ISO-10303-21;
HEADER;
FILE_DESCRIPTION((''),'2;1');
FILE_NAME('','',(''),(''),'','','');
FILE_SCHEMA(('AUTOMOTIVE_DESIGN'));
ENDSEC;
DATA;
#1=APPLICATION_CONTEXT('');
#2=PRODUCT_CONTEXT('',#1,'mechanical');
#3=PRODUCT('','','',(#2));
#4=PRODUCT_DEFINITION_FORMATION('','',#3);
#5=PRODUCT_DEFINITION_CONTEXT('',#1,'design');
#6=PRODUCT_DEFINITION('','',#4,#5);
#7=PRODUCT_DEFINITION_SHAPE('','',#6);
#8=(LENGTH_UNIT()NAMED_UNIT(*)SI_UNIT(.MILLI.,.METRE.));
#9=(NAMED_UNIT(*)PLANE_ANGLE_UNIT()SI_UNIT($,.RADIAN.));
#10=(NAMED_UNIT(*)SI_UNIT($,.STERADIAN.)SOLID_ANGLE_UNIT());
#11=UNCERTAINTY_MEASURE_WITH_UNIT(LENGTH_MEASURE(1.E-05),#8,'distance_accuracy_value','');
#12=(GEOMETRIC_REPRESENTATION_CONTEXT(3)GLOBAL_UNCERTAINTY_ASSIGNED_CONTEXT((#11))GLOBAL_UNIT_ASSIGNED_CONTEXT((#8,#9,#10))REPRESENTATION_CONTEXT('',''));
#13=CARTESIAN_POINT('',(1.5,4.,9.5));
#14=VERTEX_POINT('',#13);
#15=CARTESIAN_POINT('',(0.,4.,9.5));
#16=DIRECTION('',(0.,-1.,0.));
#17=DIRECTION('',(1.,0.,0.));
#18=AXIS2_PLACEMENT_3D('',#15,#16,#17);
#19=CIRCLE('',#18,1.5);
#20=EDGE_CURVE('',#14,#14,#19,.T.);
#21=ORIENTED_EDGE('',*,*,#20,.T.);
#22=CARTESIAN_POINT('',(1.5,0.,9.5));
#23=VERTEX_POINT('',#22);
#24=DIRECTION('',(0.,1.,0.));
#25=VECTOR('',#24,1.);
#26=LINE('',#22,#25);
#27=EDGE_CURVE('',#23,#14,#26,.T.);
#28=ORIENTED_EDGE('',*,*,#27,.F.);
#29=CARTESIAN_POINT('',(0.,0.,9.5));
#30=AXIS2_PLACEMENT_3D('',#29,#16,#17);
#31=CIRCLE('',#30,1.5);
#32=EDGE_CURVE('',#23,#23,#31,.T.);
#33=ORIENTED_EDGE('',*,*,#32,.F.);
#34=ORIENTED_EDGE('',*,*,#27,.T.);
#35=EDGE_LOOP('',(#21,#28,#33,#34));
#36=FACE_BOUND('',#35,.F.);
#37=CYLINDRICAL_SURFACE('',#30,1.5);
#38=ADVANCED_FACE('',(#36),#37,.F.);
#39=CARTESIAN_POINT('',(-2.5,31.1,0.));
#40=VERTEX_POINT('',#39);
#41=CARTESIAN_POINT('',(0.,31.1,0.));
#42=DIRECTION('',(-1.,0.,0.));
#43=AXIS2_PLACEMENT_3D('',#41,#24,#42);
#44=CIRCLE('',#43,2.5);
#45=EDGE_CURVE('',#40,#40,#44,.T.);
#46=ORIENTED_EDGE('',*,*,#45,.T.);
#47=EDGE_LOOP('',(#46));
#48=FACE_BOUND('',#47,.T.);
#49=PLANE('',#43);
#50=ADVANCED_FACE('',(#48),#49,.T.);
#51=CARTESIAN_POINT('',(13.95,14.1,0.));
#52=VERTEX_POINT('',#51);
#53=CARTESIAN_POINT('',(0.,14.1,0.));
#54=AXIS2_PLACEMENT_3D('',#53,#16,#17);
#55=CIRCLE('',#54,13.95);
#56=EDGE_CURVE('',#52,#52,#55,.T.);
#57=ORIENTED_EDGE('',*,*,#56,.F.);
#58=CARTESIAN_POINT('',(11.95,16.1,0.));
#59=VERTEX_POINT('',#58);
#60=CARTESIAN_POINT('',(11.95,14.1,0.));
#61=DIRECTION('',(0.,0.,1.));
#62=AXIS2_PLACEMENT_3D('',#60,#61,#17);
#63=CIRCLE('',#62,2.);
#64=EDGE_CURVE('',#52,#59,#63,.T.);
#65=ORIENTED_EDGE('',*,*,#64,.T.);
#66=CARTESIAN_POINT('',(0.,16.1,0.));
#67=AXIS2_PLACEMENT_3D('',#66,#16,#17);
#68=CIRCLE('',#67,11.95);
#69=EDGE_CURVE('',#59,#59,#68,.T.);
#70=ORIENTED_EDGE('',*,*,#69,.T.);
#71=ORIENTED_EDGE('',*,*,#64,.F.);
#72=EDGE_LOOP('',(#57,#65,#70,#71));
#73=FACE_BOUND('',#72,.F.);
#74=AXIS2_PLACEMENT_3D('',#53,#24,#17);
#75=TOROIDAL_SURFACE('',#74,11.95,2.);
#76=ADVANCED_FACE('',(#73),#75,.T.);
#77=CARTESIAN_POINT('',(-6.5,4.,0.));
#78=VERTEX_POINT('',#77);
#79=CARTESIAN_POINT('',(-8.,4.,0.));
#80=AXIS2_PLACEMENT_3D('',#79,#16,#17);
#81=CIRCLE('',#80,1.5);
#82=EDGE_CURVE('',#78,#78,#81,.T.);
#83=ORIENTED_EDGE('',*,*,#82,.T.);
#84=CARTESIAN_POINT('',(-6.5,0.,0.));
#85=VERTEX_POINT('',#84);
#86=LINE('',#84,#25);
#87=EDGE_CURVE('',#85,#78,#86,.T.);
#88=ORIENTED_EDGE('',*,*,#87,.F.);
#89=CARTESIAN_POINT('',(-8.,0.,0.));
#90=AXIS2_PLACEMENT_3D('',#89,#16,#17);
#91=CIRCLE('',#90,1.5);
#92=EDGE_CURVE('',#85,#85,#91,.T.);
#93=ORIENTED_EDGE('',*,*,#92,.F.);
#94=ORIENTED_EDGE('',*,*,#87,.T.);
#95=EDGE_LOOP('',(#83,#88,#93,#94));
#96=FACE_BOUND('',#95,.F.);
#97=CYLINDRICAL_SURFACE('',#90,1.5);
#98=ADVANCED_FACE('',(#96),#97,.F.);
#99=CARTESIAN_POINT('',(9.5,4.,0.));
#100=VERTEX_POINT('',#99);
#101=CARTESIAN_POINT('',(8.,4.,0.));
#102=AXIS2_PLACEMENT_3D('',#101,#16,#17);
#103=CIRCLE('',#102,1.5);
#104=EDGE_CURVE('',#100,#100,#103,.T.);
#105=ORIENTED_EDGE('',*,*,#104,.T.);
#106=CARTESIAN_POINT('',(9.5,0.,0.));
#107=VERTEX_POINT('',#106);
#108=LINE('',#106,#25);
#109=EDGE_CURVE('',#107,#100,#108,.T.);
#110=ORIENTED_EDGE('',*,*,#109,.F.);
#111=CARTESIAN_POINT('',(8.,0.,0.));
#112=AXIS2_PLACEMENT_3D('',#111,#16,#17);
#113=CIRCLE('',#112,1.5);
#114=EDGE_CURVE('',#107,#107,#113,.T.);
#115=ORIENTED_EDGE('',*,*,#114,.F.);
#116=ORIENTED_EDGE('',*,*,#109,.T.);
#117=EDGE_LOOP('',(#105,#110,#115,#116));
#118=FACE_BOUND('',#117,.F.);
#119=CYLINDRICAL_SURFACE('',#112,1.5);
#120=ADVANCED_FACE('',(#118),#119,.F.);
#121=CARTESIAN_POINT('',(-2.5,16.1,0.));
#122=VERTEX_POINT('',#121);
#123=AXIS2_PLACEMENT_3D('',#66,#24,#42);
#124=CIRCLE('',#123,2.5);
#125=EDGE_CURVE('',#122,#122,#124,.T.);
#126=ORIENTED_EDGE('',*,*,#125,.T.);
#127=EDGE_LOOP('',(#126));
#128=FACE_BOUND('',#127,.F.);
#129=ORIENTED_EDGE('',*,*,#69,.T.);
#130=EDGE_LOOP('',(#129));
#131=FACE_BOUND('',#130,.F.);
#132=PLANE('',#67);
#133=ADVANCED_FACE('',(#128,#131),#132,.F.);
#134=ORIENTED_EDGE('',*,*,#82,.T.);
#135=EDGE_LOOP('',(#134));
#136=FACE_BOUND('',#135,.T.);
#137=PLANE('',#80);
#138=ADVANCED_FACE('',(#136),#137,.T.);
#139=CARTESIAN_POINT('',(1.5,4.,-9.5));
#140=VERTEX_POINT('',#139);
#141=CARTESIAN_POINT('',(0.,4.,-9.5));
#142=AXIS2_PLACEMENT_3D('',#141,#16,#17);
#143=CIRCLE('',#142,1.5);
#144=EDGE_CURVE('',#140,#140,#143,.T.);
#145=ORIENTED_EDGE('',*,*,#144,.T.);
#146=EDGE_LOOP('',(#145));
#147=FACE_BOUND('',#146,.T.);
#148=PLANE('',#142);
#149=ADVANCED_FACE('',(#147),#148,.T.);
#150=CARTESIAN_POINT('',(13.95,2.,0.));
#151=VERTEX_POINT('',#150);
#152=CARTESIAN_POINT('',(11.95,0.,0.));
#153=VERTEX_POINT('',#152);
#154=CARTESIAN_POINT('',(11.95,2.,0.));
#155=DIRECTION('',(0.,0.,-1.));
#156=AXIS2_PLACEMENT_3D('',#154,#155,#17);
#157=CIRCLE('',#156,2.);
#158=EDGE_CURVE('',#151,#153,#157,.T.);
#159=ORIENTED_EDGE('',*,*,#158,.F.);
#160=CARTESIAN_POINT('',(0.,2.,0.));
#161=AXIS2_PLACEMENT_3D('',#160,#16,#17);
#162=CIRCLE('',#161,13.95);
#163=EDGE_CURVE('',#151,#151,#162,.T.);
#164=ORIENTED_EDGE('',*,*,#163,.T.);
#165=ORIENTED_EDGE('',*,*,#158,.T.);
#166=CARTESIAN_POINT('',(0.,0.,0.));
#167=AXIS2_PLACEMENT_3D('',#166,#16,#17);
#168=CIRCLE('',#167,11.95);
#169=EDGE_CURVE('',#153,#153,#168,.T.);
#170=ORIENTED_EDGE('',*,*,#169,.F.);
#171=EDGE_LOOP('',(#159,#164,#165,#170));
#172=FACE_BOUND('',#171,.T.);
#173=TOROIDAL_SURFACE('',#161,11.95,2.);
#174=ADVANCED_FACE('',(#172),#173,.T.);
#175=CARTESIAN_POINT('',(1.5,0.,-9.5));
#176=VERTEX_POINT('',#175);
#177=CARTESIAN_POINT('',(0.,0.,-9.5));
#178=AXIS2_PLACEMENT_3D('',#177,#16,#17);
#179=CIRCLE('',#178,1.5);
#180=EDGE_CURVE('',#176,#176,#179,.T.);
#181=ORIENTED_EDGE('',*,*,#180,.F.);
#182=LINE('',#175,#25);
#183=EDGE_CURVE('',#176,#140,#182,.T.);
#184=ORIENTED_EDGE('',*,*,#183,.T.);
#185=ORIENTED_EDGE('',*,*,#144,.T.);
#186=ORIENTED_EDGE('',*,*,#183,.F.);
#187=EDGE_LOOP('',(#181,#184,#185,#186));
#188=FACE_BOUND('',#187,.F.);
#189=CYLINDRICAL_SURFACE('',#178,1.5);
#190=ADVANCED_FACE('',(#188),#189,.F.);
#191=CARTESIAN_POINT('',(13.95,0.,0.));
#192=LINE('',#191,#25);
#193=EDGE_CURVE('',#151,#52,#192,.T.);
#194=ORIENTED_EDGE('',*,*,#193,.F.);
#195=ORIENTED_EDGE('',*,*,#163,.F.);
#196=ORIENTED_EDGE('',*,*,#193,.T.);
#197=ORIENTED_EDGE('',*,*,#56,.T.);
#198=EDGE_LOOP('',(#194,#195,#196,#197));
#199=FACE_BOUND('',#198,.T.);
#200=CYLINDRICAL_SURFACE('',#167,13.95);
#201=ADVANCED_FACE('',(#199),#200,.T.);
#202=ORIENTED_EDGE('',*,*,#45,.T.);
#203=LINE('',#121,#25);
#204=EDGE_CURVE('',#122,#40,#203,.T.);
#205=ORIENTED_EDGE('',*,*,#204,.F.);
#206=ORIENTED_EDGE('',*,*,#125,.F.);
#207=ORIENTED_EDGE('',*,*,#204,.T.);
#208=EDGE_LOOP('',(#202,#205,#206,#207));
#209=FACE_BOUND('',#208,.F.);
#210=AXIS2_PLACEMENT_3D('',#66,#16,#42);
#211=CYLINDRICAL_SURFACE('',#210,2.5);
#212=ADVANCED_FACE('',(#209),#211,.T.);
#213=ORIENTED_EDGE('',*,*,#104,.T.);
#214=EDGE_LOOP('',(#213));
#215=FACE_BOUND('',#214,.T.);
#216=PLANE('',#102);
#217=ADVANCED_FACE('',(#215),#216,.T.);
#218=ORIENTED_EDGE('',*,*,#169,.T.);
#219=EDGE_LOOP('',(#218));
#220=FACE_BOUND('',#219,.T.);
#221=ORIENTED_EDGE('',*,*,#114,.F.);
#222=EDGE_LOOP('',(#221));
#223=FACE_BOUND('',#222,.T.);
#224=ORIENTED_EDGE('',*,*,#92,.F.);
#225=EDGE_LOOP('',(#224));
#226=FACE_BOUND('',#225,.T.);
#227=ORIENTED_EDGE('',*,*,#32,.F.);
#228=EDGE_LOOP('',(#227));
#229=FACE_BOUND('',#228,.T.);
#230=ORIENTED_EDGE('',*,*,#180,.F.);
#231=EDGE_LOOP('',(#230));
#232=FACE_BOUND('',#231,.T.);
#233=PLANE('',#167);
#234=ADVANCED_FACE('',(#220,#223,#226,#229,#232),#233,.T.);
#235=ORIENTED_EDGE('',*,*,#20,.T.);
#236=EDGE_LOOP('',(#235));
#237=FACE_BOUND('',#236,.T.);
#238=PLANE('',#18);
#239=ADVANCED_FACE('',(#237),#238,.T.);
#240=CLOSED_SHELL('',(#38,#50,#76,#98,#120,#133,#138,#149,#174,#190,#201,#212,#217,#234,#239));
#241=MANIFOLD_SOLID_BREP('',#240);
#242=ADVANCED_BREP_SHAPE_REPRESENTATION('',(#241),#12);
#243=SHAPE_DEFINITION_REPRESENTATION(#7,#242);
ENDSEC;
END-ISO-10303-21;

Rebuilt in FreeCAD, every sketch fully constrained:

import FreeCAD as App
import Part
import Sketcher
from FreeCAD import Vector


def edges_at(feature, points):
    """Names of the edges that pass closest to the given points."""
    edges = feature.Shape.Edges
    near = lambda p: min(range(len(edges)), key=lambda i: edges[i].distToShape(Part.Vertex(*p))[0])
    return sorted({f"Edge{near(p) + 1}" for p in points})

doc = App.newDocument("Part")
body = doc.addObject("PartDesign::Body", "Body")

sketch1 = body.newObject("Sketcher::SketchObject", "Sketch")
sketch1.AttachmentSupport = (doc.getObject("XZ_Plane"), [""])
sketch1.MapMode = "FlatFace"
sketch1.addGeometry(Part.Circle(Vector(0, 0, 0), Vector(0, 0, 1), 14), False)
sketch1.addConstraint([
    Sketcher.Constraint("Coincident", 0, 3, -1, 1),
    Sketcher.Constraint("Diameter", 0, 27.9),
])
pad1 = body.newObject("PartDesign::Pad", "Pad")
pad1.Profile = sketch1
pad1.Length = 16.1
pad1.Reversed = True

sketch2 = body.newObject("Sketcher::SketchObject", "Sketch001")
sketch2.AttachmentSupport = (doc.getObject("XZ_Plane"), [""])
sketch2.MapMode = "FlatFace"
sketch2.AttachmentOffset = App.Placement(Vector(0, 0, -16.1), App.Rotation())
sketch2.addGeometry(Part.Circle(Vector(0, 0, 0), Vector(0, 0, 1), 2.5), False)
sketch2.addConstraint([
    Sketcher.Constraint("Coincident", 0, 3, -1, 1),
    Sketcher.Constraint("Diameter", 0, 5.0),
])
pad2 = body.newObject("PartDesign::Pad", "Pad001")
pad2.Profile = sketch2
pad2.Length = 15
pad2.Reversed = True

sketch3 = body.newObject("Sketcher::SketchObject", "Sketch002")
sketch3.AttachmentSupport = (doc.getObject("XZ_Plane"), [""])
sketch3.MapMode = "FlatFace"
sketch3.addGeometry([
    Part.Circle(Vector(0, 9.5, 0), Vector(0, 0, 1), 1.5),
    Part.Circle(Vector(0, -9.5, 0), Vector(0, 0, 1), 1.5),
    Part.Circle(Vector(-8, 0, 0), Vector(0, 0, 1), 1.5),
    Part.Circle(Vector(8, 0, 0), Vector(0, 0, 1), 1.5),
], False)
sketch3.addConstraint([
    Sketcher.Constraint("Equal", 0, 1),
    Sketcher.Constraint("Equal", 1, 2),
    Sketcher.Constraint("Equal", 2, 3),
    Sketcher.Constraint("Symmetric", 0, 3, 1, 3, -1, 1),
    Sketcher.Constraint("Symmetric", 2, 3, 3, 3, -1, 1),
    Sketcher.Constraint("PointOnObject", 0, 3, -2),
    Sketcher.Constraint("PointOnObject", 2, 3, -1),
    Sketcher.Constraint("Diameter", 0, 3.0),
    Sketcher.Constraint("DistanceX", 2, 3, -1, 1, 8.0),
    Sketcher.Constraint("DistanceY", 1, 3, 0, 3, 19.0),
])
pocket1 = body.newObject("PartDesign::Pocket", "Pocket")
pocket1.Profile = sketch3
pocket1.Length = 4
doc.recompute()

fillet = body.newObject("PartDesign::Fillet", "Fillet")
fillet.Base = (pocket1, edges_at(pocket1, [(13.95, 8.05, 0), (-13.95, 0, 0), (-13.95, 16.1, 0)]))
fillet.Radius = 2

doc.recompute()
